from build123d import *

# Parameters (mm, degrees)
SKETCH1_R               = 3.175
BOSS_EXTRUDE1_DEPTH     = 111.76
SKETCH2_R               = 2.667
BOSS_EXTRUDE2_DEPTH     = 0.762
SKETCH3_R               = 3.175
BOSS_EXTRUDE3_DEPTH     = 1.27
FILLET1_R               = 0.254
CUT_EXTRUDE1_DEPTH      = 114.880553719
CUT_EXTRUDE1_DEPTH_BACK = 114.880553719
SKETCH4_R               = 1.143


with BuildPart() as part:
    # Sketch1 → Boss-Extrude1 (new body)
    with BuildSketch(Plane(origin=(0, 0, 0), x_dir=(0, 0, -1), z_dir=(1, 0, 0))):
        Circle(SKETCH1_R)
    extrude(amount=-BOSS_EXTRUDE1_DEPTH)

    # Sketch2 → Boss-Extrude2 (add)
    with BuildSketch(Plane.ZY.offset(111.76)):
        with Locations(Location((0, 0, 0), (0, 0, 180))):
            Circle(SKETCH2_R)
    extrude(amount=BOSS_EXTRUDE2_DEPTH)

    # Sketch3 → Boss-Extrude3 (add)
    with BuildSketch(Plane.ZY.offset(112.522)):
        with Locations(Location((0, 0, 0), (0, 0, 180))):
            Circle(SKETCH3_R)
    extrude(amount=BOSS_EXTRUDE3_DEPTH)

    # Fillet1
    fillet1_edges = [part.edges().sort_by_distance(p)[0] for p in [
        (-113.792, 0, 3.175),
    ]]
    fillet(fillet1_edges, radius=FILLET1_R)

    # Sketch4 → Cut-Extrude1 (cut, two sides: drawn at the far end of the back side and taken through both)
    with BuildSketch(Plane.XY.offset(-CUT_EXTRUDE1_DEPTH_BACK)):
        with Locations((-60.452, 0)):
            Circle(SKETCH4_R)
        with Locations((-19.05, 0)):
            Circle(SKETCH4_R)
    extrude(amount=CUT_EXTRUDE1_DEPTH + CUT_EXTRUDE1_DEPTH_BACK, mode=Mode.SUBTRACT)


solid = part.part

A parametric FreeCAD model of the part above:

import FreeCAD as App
import Part
import Sketcher
Q = App.Units.Quantity


def edges_at(feature, points):
    """Names of the edges that pass closest to the given points."""
    edges = feature.Shape.Edges
    near = lambda p: min(range(len(edges)), key=lambda i: edges[i].distToShape(Part.Vertex(*p))[0])
    return sorted({f"Edge{near(p) + 1}" for p in points})

doc = App.newDocument("Part")
body = doc.addObject("PartDesign::Body", "Body")

# Sketch on YZ plane
sketch1 = doc.addObject("Sketcher::SketchObject", "Sketch")
body.addObject(sketch1)
sketch1.AttachmentSupport = (doc.YZ_Plane, [""])
sketch1.MapMode = "FlatFace"
sketch1.addGeometry(Part.Circle(App.Vector(0, 0, 0), App.Vector(0, 0, 1), 3.175), False)
sketch1.addConstraint([
    Sketcher.Constraint("Coincident", 0, 3, -1, 1),
    Sketcher.Constraint("Diameter", 0, Q("0.25 in")),
])
pad1 = doc.addObject("PartDesign::Pad", "Pad")
body.addObject(pad1)
pad1.Profile = sketch1
pad1.Length = Q("4.4 in")
pad1.Reversed = True

# Sketch on YZ plane
sketch2 = doc.addObject("Sketcher::SketchObject", "Sketch001")
body.addObject(sketch2)
sketch2.AttachmentSupport = (doc.YZ_Plane, [""])
sketch2.MapMode = "FlatFace"
sketch2.AttachmentOffset = App.Placement(App.Vector(0, 0, -4.4 * 25.4), App.Rotation())
sketch2.addGeometry(Part.Circle(App.Vector(0, 0, 0), App.Vector(0, 0, 1), 2.667), False)
sketch2.addConstraint([
    Sketcher.Constraint("Coincident", 0, 3, -1, 1),
    Sketcher.Constraint("Diameter", 0, Q("0.21 in")),
])
pad2 = doc.addObject("PartDesign::Pad", "Pad001")
body.addObject(pad2)
pad2.Profile = sketch2
pad2.Length = Q("0.03 in")
pad2.Reversed = True

# Sketch on YZ plane
sketch3 = doc.addObject("Sketcher::SketchObject", "Sketch002")
body.addObject(sketch3)
sketch3.AttachmentSupport = (doc.YZ_Plane, [""])
sketch3.MapMode = "FlatFace"
sketch3.AttachmentOffset = App.Placement(App.Vector(0, 0, -4.43 * 25.4), App.Rotation())
sketch3.addGeometry(Part.Circle(App.Vector(0, 0, 0), App.Vector(0, 0, 1), 3.175), False)
sketch3.addConstraint([
    Sketcher.Constraint("Coincident", 0, 3, -1, 1),
    Sketcher.Constraint("Diameter", 0, Q("0.25 in")),
])
pad3 = doc.addObject("PartDesign::Pad", "Pad002")
body.addObject(pad3)
pad3.Profile = sketch3
pad3.Length = Q("0.05 in")
pad3.Reversed = True
doc.recompute()

fillet = doc.addObject("PartDesign::Fillet", "Fillet")
body.addObject(fillet)
fillet.Base = (pad3, edges_at(pad3, [(-113.792, 0, 3.175)]))
fillet.Radius = Q("0.01 in")

# Sketch on XY plane
sketch4 = doc.addObject("Sketcher::SketchObject", "Sketch003")
body.addObject(sketch4)
sketch4.AttachmentSupport = (doc.XY_Plane, [""])
sketch4.MapMode = "FlatFace"
sketch4.addGeometry([
    Part.Circle(App.Vector(-60.452, 0, 0), App.Vector(0, 0, 1), 1.143),
    Part.Circle(App.Vector(-19.05, 0, 0), App.Vector(0, 0, 1), 1.143),
], False)
sketch4.addConstraint([
    Sketcher.Constraint("Equal", 0, 1),
    Sketcher.Constraint("PointOnObject", 0, 3, -1),
    Sketcher.Constraint("PointOnObject", 1, 3, -1),
    Sketcher.Constraint("Diameter", 0, Q("0.09 in")),
    Sketcher.Constraint("DistanceX", 0, 3, -1, 1, Q("2.38 in")),
    Sketcher.Constraint("DistanceX", 1, 3, -1, 1, Q("0.75 in")),
])
pocket1 = doc.addObject("PartDesign::Pocket", "Pocket")
body.addObject(pocket1)
pocket1.Profile = sketch4
pocket1.Type = "ThroughAll"
pocket1.Midplane = True

doc.recompute()
